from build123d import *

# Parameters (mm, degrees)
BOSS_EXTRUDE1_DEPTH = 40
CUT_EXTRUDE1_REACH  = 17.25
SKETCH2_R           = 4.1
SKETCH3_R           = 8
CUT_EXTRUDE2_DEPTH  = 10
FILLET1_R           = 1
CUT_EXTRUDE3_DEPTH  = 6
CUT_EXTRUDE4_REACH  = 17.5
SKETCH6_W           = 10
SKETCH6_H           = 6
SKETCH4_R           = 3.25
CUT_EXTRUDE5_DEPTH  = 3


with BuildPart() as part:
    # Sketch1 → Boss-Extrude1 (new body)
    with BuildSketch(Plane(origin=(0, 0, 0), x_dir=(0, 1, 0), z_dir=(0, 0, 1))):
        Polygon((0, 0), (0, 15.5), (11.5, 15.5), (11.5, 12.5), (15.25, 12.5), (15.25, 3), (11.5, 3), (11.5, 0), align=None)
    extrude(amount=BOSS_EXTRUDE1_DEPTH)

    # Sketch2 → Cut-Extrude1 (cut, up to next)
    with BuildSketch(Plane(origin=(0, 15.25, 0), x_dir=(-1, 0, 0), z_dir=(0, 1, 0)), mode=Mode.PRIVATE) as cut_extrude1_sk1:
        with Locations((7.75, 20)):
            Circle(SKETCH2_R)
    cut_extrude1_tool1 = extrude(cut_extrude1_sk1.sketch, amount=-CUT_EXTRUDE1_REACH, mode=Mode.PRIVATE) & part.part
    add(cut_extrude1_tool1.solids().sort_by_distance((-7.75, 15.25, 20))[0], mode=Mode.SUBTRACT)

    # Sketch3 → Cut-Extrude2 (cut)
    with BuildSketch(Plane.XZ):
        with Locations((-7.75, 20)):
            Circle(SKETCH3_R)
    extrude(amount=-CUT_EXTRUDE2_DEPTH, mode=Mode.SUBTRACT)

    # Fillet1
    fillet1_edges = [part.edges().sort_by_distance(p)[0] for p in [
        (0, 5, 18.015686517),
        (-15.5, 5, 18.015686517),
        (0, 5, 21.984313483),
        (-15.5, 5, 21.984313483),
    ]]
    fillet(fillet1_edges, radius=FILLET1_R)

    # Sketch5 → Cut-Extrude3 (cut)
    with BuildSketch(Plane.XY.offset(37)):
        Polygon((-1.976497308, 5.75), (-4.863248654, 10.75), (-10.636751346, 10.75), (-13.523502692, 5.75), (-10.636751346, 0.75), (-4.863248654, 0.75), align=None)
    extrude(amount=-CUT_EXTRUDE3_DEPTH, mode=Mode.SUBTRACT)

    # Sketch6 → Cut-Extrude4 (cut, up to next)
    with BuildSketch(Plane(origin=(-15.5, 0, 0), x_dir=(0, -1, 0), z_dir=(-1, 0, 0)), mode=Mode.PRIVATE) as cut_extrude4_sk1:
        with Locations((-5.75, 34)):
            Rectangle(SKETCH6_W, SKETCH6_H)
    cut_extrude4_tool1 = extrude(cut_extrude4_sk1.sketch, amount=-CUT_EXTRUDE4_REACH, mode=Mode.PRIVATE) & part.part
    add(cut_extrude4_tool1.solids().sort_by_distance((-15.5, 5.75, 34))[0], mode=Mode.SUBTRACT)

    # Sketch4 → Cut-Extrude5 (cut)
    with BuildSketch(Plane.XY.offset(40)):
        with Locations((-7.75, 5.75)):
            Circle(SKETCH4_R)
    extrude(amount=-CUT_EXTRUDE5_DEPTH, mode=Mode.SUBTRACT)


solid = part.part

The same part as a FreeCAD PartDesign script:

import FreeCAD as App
import Part
import Sketcher

V = App.Vector
Q = App.Units.Quantity


def edges_at(feature, points):
    """Names of the edges that pass closest to the given points."""
    edges = feature.Shape.Edges
    near = lambda p: min(range(len(edges)), key=lambda i: edges[i].distToShape(Part.Vertex(*p))[0])
    return sorted({f"Edge{near(p) + 1}" for p in points})


def add_polygon(sketch, points):
    """Adds a closed chain of lines whose ends are joined by coincident constraints."""
    first, n = sketch.GeometryCount, len(points)
    for a, b in zip(points, points[1:] + points[:1]):
        sketch.addGeometry(Part.LineSegment(App.Vector(*a, 0), App.Vector(*b, 0)), False)
    for i in range(n):
        sketch.addConstraint(Sketcher.Constraint("Coincident", first + i, 2, first + (i + 1) % n, 1))

doc = App.newDocument("Part")
body = doc.addObject("PartDesign::Body", "Body")

sketch1 = body.newObject("Sketcher::SketchObject", "Sketch")
sketch1.AttachmentSupport = (doc.getObject("XY_Plane"), [""])
sketch1.MapMode = "FlatFace"
add_polygon(sketch1, [(-15.5, 0), (0, 0), (0, 11.5), (-3, 11.5), (-3, 15.2), (-12.5, 15.2), (-12.5, 11.5), (-15.5, 11.5)])
sketch1.addConstraint([
    Sketcher.Constraint("Horizontal", 0),
    Sketcher.Constraint("Vertical", 1),
    Sketcher.Constraint("Horizontal", 2),
    Sketcher.Constraint("Vertical", 3),
    Sketcher.Constraint("Horizontal", 4),
    Sketcher.Constraint("Vertical", 5),
    Sketcher.Constraint("Horizontal", 6),
    Sketcher.Constraint("Vertical", 7),
    Sketcher.Constraint("Coincident", 0, 2, -1, 1),
    Sketcher.Constraint("Horizontal", 2, 2, 5, 2),
    Sketcher.Constraint("Equal", 2, 6),
    Sketcher.Constraint("DistanceX", 2, 2, 2, 1, Q("3 mm")),
    Sketcher.Constraint("DistanceX", 0, 1, 0, 2, Q("15.5 mm")),
    Sketcher.Constraint("DistanceY", 1, 1, 1, 2, Q("11.5 mm")),
    Sketcher.Constraint("DistanceY", 3, 1, 3, 2, Q("3.75 mm")),
])
pad1 = body.newObject("PartDesign::Pad", "Pad")
pad1.Profile = sketch1
pad1.Length = 40

sketch2 = body.newObject("Sketcher::SketchObject", "Sketch001")
sketch2.AttachmentSupport = (doc.getObject("XZ_Plane"), [""])
sketch2.MapMode = "FlatFace"
sketch2.AttachmentOffset = App.Placement(V(0, 0, -15.25), App.Rotation())
sketch2.addGeometry(Part.Circle(V(-7.8, 20, 0), V(0, 0, 1), 4.1), False)
sketch2.addConstraint([
    Sketcher.Constraint("Diameter", 0, Q("8.2 mm")),
    Sketcher.Constraint("DistanceY", -1, 1, 0, 3, Q("20 mm")),
    Sketcher.Constraint("DistanceX", 0, 3, -1, 1, Q("7.75 mm")),
])
pocket1 = body.newObject("PartDesign::Pocket", "Pocket")
pocket1.Profile = sketch2
pocket1.Type = "UpToFirst"
pocket1.Reversed = True

sketch3 = body.newObject("Sketcher::SketchObject", "Sketch002")
sketch3.AttachmentSupport = (doc.getObject("XZ_Plane"), [""])
sketch3.MapMode = "FlatFace"
sketch3.addGeometry(Part.Circle(V(-8, 20, 0), V(0, 0, 1), 8), False)
sketch3.addConstraint([
    Sketcher.Constraint("Diameter", 0, Q("16 mm")),
    Sketcher.Constraint("DistanceY", -1, 1, 0, 3, Q("20 mm")),
    Sketcher.Constraint("DistanceX", 0, 3, -1, 1, Q("7.75 mm")),
])
pocket2 = body.newObject("PartDesign::Pocket", "Pocket001")
pocket2.Profile = sketch3
pocket2.Length = 10
doc.recompute()

fillet = body.newObject("PartDesign::Fillet", "Fillet")
fillet.Base = (pocket2, edges_at(pocket2, [
    (0, 5, 18.016),
    (-15.5, 5, 18.016),
    (0, 5, 21.984),
    (-15.5, 5, 21.984),
]))
fillet.Radius = 1

sketch4 = body.newObject("Sketcher::SketchObject", "Sketch003")
sketch4.AttachmentSupport = (doc.getObject("XY_Plane"), [""])
sketch4.MapMode = "FlatFace"
sketch4.AttachmentOffset = App.Placement(V(0, 0, 37), App.Rotation())
add_polygon(sketch4, [(-2, 6), (-5, 11), (-11, 11), (-14, 6), (-11, 1), (-5, 1)])
sketch4.addConstraint([
    Sketcher.Constraint("Horizontal", 1),
    Sketcher.Constraint("Horizontal", 4),
    Sketcher.Constraint("Parallel", 0, 3),
    Sketcher.Constraint("Parallel", 2, 5),
    Sketcher.Constraint("Horizontal", 2, 2, 5, 2),
    Sketcher.Constraint("Vertical", 1, 2, 3, 2),
    Sketcher.Constraint("Vertical", 0, 2, 4, 2),
    Sketcher.Constraint("Angle", 0, Q("120 deg")),
    Sketcher.Constraint("DistanceY", 2, 2, 1, 2, Q("5 mm")),
    Sketcher.Constraint("DistanceY", -1, 1, 0, 2, Q("10.75 mm")),
    Sketcher.Constraint("DistanceX", 1, 2, 1, 1, Q("5.773503 mm")),
    Sketcher.Constraint("DistanceX", 0, 2, -1, 1, Q("4.863249 mm")),
])
pocket3 = body.newObject("PartDesign::Pocket", "Pocket002")
pocket3.Profile = sketch4
pocket3.Length = 6

sketch5 = body.newObject("Sketcher::SketchObject", "Sketch004")
sketch5.AttachmentSupport = (doc.getObject("YZ_Plane"), [""])
sketch5.MapMode = "FlatFace"
sketch5.AttachmentOffset = App.Placement(V(0, 0, -15.5), App.Rotation())
add_polygon(sketch5, [(11, 37), (11, 31), (1, 31), (1, 37)])
sketch5.addConstraint([
    Sketcher.Constraint("Vertical", 0),
    Sketcher.Constraint("Horizontal", 1),
    Sketcher.Constraint("Vertical", 2),
    Sketcher.Constraint("Horizontal", 3),
    Sketcher.Constraint("DistanceX", 1, 2, 1, 1, Q("10 mm")),
    Sketcher.Constraint("DistanceY", 0, 2, 0, 1, Q("6 mm")),
    Sketcher.Constraint("DistanceY", -1, 1, 0, 2, Q("31 mm")),
    Sketcher.Constraint("DistanceX", -1, 1, 0, 2, Q("10.75 mm")),
])
pocket4 = body.newObject("PartDesign::Pocket", "Pocket003")
pocket4.Profile = sketch5
pocket4.Length = 4.863249
pocket4.Reversed = True

sketch6 = body.newObject("Sketcher::SketchObject", "Sketch005")
sketch6.AttachmentSupport = (doc.getObject("XY_Plane"), [""])
sketch6.MapMode = "FlatFace"
sketch6.AttachmentOffset = App.Placement(V(0, 0, 40), App.Rotation())
sketch6.addGeometry(Part.Circle(V(-7.8, 5.8, 0), V(0, 0, 1), 3.2), False)
sketch6.addConstraint([
    Sketcher.Constraint("Diameter", 0, Q("6.5 mm")),
    Sketcher.Constraint("DistanceX", 0, 3, -1, 1, Q("7.75 mm")),
    Sketcher.Constraint("DistanceY", -1, 1, 0, 3, Q("5.75 mm")),
])
pocket5 = body.newObject("PartDesign::Pocket", "Pocket004")
pocket5.Profile = sketch6
pocket5.Length = 3

doc.recompute()
